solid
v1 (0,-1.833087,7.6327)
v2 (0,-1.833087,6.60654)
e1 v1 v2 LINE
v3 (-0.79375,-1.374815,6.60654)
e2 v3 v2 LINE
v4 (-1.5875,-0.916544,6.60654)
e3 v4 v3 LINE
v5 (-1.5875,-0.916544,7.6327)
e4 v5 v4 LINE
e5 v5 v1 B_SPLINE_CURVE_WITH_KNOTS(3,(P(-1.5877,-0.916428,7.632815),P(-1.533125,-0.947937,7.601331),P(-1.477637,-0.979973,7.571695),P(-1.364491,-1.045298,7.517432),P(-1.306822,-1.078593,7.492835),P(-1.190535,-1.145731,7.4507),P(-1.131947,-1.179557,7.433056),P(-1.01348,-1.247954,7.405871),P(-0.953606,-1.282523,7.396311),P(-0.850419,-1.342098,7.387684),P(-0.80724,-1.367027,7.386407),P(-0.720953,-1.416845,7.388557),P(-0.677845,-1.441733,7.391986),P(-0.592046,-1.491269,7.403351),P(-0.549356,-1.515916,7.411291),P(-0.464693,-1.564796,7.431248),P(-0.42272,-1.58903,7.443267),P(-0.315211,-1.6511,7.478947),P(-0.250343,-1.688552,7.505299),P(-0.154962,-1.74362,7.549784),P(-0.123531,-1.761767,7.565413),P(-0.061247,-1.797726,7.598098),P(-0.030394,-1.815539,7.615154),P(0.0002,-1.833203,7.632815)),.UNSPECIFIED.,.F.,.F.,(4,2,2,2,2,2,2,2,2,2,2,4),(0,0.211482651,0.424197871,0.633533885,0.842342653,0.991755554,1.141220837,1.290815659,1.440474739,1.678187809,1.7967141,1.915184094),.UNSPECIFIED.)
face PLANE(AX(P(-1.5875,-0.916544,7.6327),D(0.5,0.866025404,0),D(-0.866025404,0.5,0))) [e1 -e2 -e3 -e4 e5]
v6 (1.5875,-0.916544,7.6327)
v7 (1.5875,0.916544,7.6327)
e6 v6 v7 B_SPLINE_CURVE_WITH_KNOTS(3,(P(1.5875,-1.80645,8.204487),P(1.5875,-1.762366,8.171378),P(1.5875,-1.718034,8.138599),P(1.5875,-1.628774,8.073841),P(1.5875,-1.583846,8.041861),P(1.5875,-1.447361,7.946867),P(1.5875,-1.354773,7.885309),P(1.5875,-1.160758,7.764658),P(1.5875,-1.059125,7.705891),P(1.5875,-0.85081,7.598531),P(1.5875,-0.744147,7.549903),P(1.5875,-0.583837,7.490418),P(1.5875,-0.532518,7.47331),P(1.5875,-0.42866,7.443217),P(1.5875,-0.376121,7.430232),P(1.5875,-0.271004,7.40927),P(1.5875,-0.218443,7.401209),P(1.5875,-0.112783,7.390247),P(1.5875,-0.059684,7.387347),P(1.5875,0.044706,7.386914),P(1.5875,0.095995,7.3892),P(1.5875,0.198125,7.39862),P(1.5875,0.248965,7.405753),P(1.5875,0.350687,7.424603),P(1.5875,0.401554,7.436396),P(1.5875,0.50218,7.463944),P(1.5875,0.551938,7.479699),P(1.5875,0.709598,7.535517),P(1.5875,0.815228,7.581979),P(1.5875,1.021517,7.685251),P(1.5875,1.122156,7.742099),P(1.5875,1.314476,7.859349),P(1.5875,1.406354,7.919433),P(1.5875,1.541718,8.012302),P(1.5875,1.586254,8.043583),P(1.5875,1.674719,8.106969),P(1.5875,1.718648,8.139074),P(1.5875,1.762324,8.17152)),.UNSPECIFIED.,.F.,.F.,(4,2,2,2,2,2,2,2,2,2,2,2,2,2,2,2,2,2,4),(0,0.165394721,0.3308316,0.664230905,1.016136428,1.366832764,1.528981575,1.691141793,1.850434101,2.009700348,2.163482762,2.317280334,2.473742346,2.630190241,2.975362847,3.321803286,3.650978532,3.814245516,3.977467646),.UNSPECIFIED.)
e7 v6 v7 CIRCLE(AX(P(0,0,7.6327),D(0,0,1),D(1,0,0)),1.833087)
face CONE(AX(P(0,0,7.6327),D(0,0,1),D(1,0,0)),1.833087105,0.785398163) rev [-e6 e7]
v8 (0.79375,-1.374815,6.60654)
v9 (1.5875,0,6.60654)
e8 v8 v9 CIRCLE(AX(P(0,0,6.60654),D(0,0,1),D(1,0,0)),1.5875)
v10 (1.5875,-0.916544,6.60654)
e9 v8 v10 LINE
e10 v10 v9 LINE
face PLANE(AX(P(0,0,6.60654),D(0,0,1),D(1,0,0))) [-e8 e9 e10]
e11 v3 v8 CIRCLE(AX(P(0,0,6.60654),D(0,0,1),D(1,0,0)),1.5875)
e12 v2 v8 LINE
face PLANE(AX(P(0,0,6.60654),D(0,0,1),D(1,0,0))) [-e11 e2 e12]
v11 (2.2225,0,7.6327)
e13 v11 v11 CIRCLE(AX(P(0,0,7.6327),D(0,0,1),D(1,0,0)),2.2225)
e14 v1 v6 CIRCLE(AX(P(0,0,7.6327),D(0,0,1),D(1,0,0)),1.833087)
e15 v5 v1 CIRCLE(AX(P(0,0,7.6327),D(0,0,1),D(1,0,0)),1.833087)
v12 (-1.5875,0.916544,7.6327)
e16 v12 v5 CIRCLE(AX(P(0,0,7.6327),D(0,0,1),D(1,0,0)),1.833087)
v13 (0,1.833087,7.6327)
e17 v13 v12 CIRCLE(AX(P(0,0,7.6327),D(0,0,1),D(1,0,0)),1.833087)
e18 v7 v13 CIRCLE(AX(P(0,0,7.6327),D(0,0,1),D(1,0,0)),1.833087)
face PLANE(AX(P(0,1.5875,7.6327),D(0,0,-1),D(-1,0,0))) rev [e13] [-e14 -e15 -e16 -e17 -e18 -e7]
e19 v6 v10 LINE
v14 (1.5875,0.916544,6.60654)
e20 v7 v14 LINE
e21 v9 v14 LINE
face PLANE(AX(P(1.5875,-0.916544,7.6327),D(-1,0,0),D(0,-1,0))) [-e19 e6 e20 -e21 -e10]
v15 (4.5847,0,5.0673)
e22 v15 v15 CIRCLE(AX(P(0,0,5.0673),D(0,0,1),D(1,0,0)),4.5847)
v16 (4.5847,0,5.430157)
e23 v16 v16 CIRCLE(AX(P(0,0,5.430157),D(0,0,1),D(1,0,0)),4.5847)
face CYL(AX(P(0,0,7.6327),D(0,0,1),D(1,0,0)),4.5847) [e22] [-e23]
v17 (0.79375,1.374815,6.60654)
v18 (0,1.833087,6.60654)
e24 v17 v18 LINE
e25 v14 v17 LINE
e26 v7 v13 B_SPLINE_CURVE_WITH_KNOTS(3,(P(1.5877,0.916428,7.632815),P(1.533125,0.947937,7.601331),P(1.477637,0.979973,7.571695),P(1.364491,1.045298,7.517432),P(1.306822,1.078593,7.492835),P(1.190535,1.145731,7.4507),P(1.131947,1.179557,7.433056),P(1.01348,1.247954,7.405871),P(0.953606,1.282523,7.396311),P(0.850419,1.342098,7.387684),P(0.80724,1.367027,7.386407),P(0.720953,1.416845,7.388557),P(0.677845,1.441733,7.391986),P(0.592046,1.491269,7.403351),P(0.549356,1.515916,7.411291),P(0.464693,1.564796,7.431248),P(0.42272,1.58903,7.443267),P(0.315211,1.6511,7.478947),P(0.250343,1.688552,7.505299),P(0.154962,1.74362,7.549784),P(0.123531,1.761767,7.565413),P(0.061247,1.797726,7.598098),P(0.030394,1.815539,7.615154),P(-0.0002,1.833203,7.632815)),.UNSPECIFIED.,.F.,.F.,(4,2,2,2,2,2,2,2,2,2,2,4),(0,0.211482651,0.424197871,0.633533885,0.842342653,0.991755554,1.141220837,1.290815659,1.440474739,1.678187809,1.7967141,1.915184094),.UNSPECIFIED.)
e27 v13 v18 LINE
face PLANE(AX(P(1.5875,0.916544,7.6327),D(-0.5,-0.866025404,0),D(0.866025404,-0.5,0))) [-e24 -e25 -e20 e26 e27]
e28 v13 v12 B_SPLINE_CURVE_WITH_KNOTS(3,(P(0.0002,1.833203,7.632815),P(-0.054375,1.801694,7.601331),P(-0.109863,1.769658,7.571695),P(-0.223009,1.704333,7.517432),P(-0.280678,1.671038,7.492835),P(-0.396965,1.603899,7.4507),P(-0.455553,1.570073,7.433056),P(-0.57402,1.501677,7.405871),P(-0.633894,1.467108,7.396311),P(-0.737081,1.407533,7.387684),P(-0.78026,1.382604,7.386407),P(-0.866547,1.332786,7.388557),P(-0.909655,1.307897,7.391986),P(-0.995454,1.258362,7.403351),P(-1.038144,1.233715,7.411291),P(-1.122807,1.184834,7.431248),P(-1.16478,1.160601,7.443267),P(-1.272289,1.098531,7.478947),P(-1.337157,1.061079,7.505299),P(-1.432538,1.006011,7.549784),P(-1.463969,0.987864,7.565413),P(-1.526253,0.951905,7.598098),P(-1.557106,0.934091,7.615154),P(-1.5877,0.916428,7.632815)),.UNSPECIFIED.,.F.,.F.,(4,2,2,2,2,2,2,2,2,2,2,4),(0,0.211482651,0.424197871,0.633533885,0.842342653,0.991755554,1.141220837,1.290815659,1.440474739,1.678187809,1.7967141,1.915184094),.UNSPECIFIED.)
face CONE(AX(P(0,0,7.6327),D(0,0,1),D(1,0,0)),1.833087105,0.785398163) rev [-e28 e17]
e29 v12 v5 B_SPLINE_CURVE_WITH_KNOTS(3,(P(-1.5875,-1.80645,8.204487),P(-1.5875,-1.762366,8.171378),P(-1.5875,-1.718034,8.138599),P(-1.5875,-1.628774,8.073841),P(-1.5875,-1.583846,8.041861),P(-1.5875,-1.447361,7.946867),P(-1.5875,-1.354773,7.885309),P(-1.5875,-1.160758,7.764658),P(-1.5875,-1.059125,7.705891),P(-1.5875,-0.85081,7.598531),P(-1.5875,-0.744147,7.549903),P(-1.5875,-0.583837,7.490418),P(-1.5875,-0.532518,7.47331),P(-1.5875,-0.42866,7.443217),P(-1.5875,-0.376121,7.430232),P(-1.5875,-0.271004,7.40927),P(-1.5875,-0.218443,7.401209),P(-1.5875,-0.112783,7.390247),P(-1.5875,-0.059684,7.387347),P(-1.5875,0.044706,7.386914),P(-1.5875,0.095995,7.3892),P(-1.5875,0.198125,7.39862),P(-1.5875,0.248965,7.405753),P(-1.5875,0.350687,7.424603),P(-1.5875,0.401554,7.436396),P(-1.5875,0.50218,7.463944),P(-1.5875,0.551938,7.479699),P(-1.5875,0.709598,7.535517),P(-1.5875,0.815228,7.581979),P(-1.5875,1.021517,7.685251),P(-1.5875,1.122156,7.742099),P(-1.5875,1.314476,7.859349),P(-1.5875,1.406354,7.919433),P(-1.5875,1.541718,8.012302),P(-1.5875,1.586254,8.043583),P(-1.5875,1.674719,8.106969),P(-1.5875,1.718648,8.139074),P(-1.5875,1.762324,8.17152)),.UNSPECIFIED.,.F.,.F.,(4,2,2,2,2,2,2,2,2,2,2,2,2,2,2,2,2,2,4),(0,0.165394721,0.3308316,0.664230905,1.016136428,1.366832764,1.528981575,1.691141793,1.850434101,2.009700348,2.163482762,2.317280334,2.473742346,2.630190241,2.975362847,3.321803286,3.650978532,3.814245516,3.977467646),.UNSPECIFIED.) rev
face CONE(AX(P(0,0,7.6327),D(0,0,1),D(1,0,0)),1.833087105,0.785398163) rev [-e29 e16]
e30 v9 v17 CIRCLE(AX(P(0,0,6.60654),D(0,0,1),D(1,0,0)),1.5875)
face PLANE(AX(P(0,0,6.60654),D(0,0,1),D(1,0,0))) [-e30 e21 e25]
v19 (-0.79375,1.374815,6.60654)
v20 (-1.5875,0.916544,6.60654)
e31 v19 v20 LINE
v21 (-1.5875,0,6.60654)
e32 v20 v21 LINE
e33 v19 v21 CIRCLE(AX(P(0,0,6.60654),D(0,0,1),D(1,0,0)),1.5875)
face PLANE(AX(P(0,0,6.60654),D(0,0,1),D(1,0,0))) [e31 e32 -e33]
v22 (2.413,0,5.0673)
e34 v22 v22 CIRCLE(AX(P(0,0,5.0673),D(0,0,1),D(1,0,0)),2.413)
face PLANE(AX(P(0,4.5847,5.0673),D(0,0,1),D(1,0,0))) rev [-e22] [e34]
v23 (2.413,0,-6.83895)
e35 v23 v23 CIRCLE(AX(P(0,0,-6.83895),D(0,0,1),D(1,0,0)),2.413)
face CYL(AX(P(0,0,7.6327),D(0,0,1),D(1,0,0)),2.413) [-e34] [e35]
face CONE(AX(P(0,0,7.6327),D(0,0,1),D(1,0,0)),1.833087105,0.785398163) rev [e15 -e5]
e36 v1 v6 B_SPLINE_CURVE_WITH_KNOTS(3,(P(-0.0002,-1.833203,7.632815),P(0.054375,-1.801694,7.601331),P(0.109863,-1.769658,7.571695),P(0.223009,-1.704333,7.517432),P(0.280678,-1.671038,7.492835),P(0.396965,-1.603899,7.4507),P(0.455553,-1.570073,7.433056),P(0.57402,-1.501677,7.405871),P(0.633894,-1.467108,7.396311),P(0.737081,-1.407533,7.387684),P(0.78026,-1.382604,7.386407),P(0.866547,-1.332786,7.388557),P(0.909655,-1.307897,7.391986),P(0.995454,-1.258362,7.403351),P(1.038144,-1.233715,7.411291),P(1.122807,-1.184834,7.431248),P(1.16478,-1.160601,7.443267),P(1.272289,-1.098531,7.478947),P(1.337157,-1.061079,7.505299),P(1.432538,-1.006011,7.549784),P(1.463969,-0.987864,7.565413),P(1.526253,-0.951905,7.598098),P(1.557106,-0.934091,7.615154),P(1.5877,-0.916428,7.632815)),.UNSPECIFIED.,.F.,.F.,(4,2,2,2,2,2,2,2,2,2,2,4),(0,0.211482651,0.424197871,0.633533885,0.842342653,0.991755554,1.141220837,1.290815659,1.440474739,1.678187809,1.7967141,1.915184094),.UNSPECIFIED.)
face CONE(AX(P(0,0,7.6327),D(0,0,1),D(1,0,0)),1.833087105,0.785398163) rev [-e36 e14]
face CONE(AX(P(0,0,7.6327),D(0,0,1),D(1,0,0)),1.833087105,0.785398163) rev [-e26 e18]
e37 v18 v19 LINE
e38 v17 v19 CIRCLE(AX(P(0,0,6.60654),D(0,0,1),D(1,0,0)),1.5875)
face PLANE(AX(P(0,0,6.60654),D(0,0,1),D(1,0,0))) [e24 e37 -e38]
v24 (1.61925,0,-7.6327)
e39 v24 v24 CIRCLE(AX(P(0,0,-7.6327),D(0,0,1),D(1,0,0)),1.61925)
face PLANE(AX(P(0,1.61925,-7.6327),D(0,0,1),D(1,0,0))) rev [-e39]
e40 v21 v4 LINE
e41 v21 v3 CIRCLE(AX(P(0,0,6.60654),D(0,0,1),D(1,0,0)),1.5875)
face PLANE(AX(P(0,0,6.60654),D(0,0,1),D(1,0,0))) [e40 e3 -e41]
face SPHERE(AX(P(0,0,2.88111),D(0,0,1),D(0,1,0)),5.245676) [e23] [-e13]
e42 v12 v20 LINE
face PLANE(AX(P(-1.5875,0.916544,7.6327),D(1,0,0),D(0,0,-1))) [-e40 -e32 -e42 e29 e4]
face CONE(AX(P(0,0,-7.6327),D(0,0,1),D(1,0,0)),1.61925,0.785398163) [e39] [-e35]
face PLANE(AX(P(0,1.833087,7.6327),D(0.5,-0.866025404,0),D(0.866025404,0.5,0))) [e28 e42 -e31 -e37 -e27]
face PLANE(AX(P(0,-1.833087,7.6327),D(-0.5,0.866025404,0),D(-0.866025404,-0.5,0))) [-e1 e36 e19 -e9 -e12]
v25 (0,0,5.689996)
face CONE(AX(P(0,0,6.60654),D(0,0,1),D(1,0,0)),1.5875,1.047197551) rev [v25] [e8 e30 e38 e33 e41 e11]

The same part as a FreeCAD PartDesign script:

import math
import FreeCAD as App
import Part
import Sketcher
from FreeCAD import Vector
Q = App.Units.Quantity


def faces_at(feature, points):
    """Names of the faces that lie closest to the given points."""
    faces = feature.Shape.Faces
    near = lambda p: min(range(len(faces)), key=lambda i: faces[i].distToShape(Part.Vertex(*p))[0])
    return sorted({f"Face{near(p) + 1}" for p in points})

doc = App.newDocument("Part")
body = doc.addObject("PartDesign::Body", "Body")

# Sketch on YZ plane
sketch1 = doc.addObject("Sketcher::SketchObject", "Sketch")
body.addObject(sketch1)
sketch1.AttachmentSupport = (doc.YZ_Plane, [""])
sketch1.MapMode = "FlatFace"
sketch1.addGeometry(Part.LineSegment(Vector(2.2225, 7.6327, 0), Vector(1.5875, 7.6327, 0)), False)
sketch1.addGeometry(Part.LineSegment(Vector(1.5875, 7.6327, 0), Vector(1.5875, 6.60654, 0)), False)
sketch1.addGeometry(Part.LineSegment(Vector(1.5875, 6.60654, 0), Vector(0, 5.689996, 0)), False)
sketch1.addGeometry(Part.LineSegment(Vector(0, 5.689996, 0), Vector(0, -7.6327, 0)), False)
sketch1.addGeometry(Part.LineSegment(Vector(0, -7.6327, 0), Vector(1.61925, -7.6327, 0)), False)
sketch1.addGeometry(Part.LineSegment(Vector(1.61925, -7.6327, 0), Vector(2.413, -6.83895, 0)), False)
sketch1.addGeometry(Part.LineSegment(Vector(2.413, -6.83895, 0), Vector(2.413, 5.0673, 0)), False)
sketch1.addGeometry(Part.LineSegment(Vector(2.413, 5.0673, 0), Vector(4.5847, 5.0673, 0)), False)
sketch1.addGeometry(Part.LineSegment(Vector(4.5847, 5.0673, 0), Vector(4.5847, 5.430157, 0)), False)
sketch1.addGeometry(Part.ArcOfCircle(Part.Circle(Vector(0, 2.88111, 0), Vector(0, 0, 1), 5.245676), math.radians(29.073623), math.radians(64.932715)), False)
sketch1.addConstraint(Sketcher.Constraint("Coincident", 0, 2, 1, 1))
sketch1.addConstraint(Sketcher.Constraint("Coincident", 1, 2, 2, 1))
sketch1.addConstraint(Sketcher.Constraint("Coincident", 2, 2, 3, 1))
sketch1.addConstraint(Sketcher.Constraint("Coincident", 3, 2, 4, 1))
sketch1.addConstraint(Sketcher.Constraint("Coincident", 4, 2, 5, 1))
sketch1.addConstraint(Sketcher.Constraint("Coincident", 5, 2, 6, 1))
sketch1.addConstraint(Sketcher.Constraint("Coincident", 6, 2, 7, 1))
sketch1.addConstraint(Sketcher.Constraint("Coincident", 7, 2, 8, 1))
sketch1.addConstraint(Sketcher.Constraint("Coincident", 8, 2, 9, 1))
sketch1.addConstraint(Sketcher.Constraint("Coincident", 9, 2, 0, 1))
sketch1.addConstraint(Sketcher.Constraint("Horizontal", 0))
sketch1.addConstraint(Sketcher.Constraint("Vertical", 1))
sketch1.addConstraint(Sketcher.Constraint("Vertical", 3))
sketch1.addConstraint(Sketcher.Constraint("Horizontal", 4))
sketch1.addConstraint(Sketcher.Constraint("Vertical", 6))
sketch1.addConstraint(Sketcher.Constraint("Horizontal", 7))
sketch1.addConstraint(Sketcher.Constraint("Vertical", 8))
sketch1.addConstraint(Sketcher.Constraint("PointOnObject", 9, 3, -2))
sketch1.addConstraint(Sketcher.Constraint("PointOnObject", 2, 2, -2))
sketch1.addConstraint(Sketcher.Constraint("Angle", 2, Q("-150 deg")))
sketch1.addConstraint(Sketcher.Constraint("Angle", 5, Q("45 deg")))
sketch1.addConstraint(Sketcher.Constraint("DistanceX", 0, 2, 0, 1, Q("0.025 in")))
sketch1.addConstraint(Sketcher.Constraint("DistanceY", 6, 1, 6, 2, Q("0.46875 in")))
sketch1.addConstraint(Sketcher.Constraint("DistanceX", 7, 1, 7, 2, Q("0.0855 in")))
sketch1.addConstraint(Sketcher.Constraint("DistanceY", 1, 2, 1, 1, Q("0.0404 in")))
sketch1.addConstraint(Sketcher.Constraint("DistanceX", -1, 1, 0, 2, Q("0.0625 in")))
sketch1.addConstraint(Sketcher.Constraint("DistanceX", -1, 1, 5, 2, Q("0.095 in")))
sketch1.addConstraint(Sketcher.Constraint("DistanceY", 3, 2, 0, 2, Q("0.601 in")))
sketch1.addConstraint(Sketcher.Constraint("DistanceX", 4, 2, 5, 2, Q("0.03125 in")))
sketch1.addConstraint(Sketcher.Constraint("DistanceY", -1, 1, 0, 2, Q("0.3005 in")))
sketch1.addConstraint(Sketcher.Constraint("Radius", 9, 5.245676))
revolution = doc.addObject("PartDesign::Revolution", "Revolution")
body.addObject(revolution)
revolution.Profile = sketch1
revolution.ReferenceAxis = (sketch1, ["V_Axis"])
revolution.Angle = 360

# Sketch on XY plane
sketch2 = doc.addObject("Sketcher::SketchObject", "Sketch001")
body.addObject(sketch2)
sketch2.AttachmentSupport = (doc.XY_Plane, [""])
sketch2.MapMode = "FlatFace"
sketch2.AttachmentOffset = App.Placement(Vector(0, 0, 0.2601 * 25.4), App.Rotation())
sketch2.addGeometry(Part.LineSegment(Vector(0, 1.833087, 0), Vector(-1.5875, 0.916544, 0)), False)
sketch2.addGeometry(Part.LineSegment(Vector(-1.5875, 0.916544, 0), Vector(-1.5875, -0.916544, 0)), False)
sketch2.addGeometry(Part.LineSegment(Vector(-1.5875, -0.916544, 0), Vector(0, -1.833087, 0)), False)
sketch2.addGeometry(Part.LineSegment(Vector(0, -1.833087, 0), Vector(1.5875, -0.916544, 0)), False)
sketch2.addGeometry(Part.LineSegment(Vector(1.5875, -0.916544, 0), Vector(1.5875, 0.916544, 0)), False)
sketch2.addGeometry(Part.LineSegment(Vector(1.5875, 0.916544, 0), Vector(0, 1.833087, 0)), False)
sketch2.addConstraint(Sketcher.Constraint("Coincident", 0, 2, 1, 1))
sketch2.addConstraint(Sketcher.Constraint("Coincident", 1, 2, 2, 1))
sketch2.addConstraint(Sketcher.Constraint("Coincident", 2, 2, 3, 1))
sketch2.addConstraint(Sketcher.Constraint("Coincident", 3, 2, 4, 1))
sketch2.addConstraint(Sketcher.Constraint("Coincident", 4, 2, 5, 1))
sketch2.addConstraint(Sketcher.Constraint("Coincident", 5, 2, 0, 1))
sketch2.addConstraint(Sketcher.Constraint("Vertical", 1))
sketch2.addConstraint(Sketcher.Constraint("Vertical", 4))
sketch2.addConstraint(Sketcher.Constraint("Symmetric", 0, 2, 3, 2, -1, 1))
sketch2.addConstraint(Sketcher.Constraint("Symmetric", 2, 2, 5, 2, -1, 1))
sketch2.addConstraint(Sketcher.Constraint("PointOnObject", 2, 2, -2))
sketch2.addConstraint(Sketcher.Constraint("Parallel", 2, 5))
sketch2.addConstraint(Sketcher.Constraint("Horizontal", 1, 2, 3, 2))
sketch2.addConstraint(Sketcher.Constraint("Angle", 0, Q("-150 deg")))
sketch2.addConstraint(Sketcher.Constraint("DistanceX", 0, 2, -1, 1, Q("0.0625 in")))
sketch2.addConstraint(Sketcher.Constraint("DistanceY", 1, 2, 1, 1, 1.833087))
pocket1 = doc.addObject("PartDesign::Pocket", "Pocket")
body.addObject(pocket1)
pocket1.Profile = sketch2
pocket1.Type = "ThroughAll"
pocket1.Reversed = True
body2 = doc.addObject("PartDesign::Body", "Body001")

# Sketch on XY plane
sketch3 = doc.addObject("Sketcher::SketchObject", "Sketch002")
body2.addObject(sketch3)
sketch3.AttachmentSupport = (doc.getObject("XY_Plane001"), [""])
sketch3.MapMode = "FlatFace"
sketch3.AttachmentOffset = App.Placement(Vector(0, 0, 0.3005 * 25.4), App.Rotation())
sketch3.addGeometry(Part.Circle(Vector(0, 0, 0), Vector(0, 0, 1), 1.833087), False)
sketch3.addConstraint(Sketcher.Constraint("Coincident", 0, 3, -1, 1))
sketch3.addConstraint(Sketcher.Constraint("Diameter", 0, 3.666174))
pad1 = doc.addObject("PartDesign::Pad", "Pad")
body2.addObject(pad1)
pad1.Profile = sketch3
pad1.Length = Q("0.0404 in")
pad1.Reversed = True
doc.recompute()

datumplane = doc.addObject("PartDesign::Plane", "DatumPlane")
body2.addObject(datumplane)
datumplane.AttachmentSupport = (doc.getObject("XY_Plane001"), [""])
datumplane.MapMode = "FlatFace"
datumplane.AttachmentOffset = App.Placement(Vector(0, 0, 0.3005 * 25.4), App.Rotation())
draft = doc.addObject("PartDesign::Draft", "Draft")
body2.addObject(draft)
draft.Base = (pad1, faces_at(pad1, [(-1.833, 0, 7.12)]))
draft.NeutralPlane = (datumplane, [""])
draft.Angle = 45
draft.Reversed = True
doc.recompute()

boolean = doc.addObject("PartDesign::Boolean", "Boolean")
body.addObject(boolean)
boolean.Type = "Cut"
boolean.addObjects([body2])

doc.recompute()
